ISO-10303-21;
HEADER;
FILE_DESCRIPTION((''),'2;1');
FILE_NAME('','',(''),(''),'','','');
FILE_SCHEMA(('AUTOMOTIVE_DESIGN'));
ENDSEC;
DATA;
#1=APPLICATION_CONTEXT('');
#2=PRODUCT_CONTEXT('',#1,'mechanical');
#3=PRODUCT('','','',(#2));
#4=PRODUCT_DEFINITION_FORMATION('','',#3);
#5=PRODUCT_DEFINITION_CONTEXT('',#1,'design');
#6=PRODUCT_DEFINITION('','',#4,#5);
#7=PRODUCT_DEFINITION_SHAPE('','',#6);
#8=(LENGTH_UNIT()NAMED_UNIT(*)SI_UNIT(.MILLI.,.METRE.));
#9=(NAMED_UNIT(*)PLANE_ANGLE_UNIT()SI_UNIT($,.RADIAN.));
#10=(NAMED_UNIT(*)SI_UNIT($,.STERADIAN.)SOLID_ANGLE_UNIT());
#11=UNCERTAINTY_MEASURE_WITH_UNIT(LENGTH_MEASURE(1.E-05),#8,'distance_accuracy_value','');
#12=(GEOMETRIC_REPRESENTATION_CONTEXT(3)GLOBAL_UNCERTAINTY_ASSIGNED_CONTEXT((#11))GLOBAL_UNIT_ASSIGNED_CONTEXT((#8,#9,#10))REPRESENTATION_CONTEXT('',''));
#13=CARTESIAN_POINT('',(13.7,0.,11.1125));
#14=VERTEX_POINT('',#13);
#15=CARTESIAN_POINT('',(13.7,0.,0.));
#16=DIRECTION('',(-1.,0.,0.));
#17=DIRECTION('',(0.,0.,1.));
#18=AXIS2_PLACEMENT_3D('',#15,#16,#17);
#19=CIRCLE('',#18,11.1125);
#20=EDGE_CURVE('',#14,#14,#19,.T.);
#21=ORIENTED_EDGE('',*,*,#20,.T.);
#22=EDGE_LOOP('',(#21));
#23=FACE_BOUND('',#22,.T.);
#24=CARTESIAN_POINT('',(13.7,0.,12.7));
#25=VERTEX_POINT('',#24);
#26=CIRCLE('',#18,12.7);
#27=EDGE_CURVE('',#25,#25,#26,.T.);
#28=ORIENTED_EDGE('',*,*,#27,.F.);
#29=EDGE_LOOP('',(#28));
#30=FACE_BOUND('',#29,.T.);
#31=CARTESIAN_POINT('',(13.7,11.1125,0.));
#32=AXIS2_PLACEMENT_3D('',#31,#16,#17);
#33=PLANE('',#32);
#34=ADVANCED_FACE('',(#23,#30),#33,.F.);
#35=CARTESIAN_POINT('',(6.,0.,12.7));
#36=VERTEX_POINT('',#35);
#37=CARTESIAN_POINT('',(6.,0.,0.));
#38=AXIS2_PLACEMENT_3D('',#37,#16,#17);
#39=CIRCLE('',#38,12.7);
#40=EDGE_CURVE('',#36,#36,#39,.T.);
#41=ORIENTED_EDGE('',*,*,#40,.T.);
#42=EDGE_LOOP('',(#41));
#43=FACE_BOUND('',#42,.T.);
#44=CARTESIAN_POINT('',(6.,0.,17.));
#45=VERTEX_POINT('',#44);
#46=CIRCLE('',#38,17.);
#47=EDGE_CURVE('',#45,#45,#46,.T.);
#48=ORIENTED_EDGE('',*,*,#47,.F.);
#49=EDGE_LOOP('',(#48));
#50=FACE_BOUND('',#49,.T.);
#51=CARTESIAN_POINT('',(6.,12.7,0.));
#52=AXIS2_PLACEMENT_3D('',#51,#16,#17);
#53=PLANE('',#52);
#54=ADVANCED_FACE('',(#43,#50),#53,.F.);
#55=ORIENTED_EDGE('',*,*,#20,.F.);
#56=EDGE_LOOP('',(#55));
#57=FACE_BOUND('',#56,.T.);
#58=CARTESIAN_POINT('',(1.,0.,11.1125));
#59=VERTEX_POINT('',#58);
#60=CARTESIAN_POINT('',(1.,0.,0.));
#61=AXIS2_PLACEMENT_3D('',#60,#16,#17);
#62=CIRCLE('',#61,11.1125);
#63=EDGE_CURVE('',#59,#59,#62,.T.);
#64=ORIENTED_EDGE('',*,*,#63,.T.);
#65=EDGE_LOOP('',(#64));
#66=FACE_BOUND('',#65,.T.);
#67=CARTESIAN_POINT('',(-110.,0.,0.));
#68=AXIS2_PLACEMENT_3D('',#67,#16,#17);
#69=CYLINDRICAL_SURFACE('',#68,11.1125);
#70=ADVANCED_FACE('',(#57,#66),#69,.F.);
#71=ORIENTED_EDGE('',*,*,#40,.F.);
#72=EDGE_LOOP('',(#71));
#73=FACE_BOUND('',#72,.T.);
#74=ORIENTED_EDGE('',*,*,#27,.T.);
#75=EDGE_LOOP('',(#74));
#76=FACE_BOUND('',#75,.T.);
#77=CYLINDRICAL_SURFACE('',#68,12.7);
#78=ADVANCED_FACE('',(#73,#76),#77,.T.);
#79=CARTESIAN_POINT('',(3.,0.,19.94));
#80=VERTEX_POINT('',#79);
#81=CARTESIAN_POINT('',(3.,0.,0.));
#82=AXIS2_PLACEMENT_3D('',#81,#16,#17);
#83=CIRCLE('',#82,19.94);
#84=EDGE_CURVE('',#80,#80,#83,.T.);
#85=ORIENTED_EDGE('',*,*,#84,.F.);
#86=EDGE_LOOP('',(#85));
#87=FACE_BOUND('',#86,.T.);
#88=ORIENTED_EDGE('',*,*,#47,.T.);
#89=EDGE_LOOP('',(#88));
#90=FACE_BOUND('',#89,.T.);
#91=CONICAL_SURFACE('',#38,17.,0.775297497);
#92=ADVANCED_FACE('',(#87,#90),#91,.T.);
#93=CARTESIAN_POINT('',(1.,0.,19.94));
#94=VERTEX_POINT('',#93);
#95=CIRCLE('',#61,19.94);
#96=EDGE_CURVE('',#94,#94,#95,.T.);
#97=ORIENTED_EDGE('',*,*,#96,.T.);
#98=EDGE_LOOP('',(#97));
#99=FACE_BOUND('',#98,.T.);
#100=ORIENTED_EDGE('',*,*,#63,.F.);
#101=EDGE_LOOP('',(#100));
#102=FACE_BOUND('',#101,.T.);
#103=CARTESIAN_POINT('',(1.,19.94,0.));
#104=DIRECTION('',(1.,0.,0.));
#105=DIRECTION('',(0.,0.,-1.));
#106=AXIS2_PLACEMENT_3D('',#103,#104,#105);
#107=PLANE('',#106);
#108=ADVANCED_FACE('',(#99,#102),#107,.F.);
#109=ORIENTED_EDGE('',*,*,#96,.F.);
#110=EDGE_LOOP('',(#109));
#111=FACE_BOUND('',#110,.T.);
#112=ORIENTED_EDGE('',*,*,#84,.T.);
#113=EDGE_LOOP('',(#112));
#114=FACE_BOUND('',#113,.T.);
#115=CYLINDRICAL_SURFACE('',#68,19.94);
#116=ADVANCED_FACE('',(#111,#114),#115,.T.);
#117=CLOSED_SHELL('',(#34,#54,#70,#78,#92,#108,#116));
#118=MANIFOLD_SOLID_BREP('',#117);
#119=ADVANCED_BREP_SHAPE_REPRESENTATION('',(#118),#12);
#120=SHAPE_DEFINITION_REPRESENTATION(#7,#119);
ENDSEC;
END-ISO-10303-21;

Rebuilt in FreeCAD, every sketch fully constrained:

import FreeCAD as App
import Part
import Sketcher
from FreeCAD import Vector
Q = App.Units.Quantity


def add_polygon(sketch, points):
    """Adds a closed chain of lines whose ends are joined by coincident constraints."""
    first, n = sketch.GeometryCount, len(points)
    for a, b in zip(points, points[1:] + points[:1]):
        sketch.addGeometry(Part.LineSegment(App.Vector(*a, 0), App.Vector(*b, 0)), False)
    for i in range(n):
        sketch.addConstraint(Sketcher.Constraint("Coincident", first + i, 2, first + (i + 1) % n, 1))

doc = App.newDocument("Part")
body = doc.addObject("PartDesign::Body", "Body")

# Sketch on XY plane
sketch1 = body.newObject("Sketcher::SketchObject", "Sketch")
sketch1.AttachmentSupport = (doc.getObject("XY_Plane"), [""])
sketch1.MapMode = "FlatFace"
add_polygon(sketch1, [(1, 11.1), (13.7, 11.1), (13.7, 12.7), (6, 12.7), (6, 17), (3, 19.9), (1, 19.9)])  # lines 0-6
sketch1.addConstraint([
    Sketcher.Constraint("Horizontal", 0),
    Sketcher.Constraint("Vertical", 1),
    Sketcher.Constraint("Horizontal", 2),
    Sketcher.Constraint("Vertical", 3),
    Sketcher.Constraint("Horizontal", 5),
    Sketcher.Constraint("Vertical", 6),
    Sketcher.Constraint("DistanceX", 5, 2, 5, 1, Q("2 mm")),
    Sketcher.Constraint("DistanceX", 0, 1, 0, 2, Q("12.7 mm")),
    Sketcher.Constraint("DistanceX", 2, 2, 2, 1, Q("7.7 mm")),
    Sketcher.Constraint("DistanceY", 3, 1, 3, 2, Q("4.3 mm")),
    Sketcher.Constraint("DistanceX", -1, 1, 2, 2, Q("6 mm")),
    Sketcher.Constraint("DistanceY", -1, 1, 3, 2, Q("17 mm")),
    Sketcher.Constraint("DistanceY", -1, 1, 4, 2, Q("19.94 mm")),
    Sketcher.Constraint("DistanceY", 1, 1, 1, 2, Q("1.5875 mm")),
])
revolution = body.newObject("PartDesign::Revolution", "Revolution")
revolution.Profile = sketch1
revolution.ReferenceAxis = (sketch1, ["H_Axis"])
revolution.Angle = 360

doc.recompute()
